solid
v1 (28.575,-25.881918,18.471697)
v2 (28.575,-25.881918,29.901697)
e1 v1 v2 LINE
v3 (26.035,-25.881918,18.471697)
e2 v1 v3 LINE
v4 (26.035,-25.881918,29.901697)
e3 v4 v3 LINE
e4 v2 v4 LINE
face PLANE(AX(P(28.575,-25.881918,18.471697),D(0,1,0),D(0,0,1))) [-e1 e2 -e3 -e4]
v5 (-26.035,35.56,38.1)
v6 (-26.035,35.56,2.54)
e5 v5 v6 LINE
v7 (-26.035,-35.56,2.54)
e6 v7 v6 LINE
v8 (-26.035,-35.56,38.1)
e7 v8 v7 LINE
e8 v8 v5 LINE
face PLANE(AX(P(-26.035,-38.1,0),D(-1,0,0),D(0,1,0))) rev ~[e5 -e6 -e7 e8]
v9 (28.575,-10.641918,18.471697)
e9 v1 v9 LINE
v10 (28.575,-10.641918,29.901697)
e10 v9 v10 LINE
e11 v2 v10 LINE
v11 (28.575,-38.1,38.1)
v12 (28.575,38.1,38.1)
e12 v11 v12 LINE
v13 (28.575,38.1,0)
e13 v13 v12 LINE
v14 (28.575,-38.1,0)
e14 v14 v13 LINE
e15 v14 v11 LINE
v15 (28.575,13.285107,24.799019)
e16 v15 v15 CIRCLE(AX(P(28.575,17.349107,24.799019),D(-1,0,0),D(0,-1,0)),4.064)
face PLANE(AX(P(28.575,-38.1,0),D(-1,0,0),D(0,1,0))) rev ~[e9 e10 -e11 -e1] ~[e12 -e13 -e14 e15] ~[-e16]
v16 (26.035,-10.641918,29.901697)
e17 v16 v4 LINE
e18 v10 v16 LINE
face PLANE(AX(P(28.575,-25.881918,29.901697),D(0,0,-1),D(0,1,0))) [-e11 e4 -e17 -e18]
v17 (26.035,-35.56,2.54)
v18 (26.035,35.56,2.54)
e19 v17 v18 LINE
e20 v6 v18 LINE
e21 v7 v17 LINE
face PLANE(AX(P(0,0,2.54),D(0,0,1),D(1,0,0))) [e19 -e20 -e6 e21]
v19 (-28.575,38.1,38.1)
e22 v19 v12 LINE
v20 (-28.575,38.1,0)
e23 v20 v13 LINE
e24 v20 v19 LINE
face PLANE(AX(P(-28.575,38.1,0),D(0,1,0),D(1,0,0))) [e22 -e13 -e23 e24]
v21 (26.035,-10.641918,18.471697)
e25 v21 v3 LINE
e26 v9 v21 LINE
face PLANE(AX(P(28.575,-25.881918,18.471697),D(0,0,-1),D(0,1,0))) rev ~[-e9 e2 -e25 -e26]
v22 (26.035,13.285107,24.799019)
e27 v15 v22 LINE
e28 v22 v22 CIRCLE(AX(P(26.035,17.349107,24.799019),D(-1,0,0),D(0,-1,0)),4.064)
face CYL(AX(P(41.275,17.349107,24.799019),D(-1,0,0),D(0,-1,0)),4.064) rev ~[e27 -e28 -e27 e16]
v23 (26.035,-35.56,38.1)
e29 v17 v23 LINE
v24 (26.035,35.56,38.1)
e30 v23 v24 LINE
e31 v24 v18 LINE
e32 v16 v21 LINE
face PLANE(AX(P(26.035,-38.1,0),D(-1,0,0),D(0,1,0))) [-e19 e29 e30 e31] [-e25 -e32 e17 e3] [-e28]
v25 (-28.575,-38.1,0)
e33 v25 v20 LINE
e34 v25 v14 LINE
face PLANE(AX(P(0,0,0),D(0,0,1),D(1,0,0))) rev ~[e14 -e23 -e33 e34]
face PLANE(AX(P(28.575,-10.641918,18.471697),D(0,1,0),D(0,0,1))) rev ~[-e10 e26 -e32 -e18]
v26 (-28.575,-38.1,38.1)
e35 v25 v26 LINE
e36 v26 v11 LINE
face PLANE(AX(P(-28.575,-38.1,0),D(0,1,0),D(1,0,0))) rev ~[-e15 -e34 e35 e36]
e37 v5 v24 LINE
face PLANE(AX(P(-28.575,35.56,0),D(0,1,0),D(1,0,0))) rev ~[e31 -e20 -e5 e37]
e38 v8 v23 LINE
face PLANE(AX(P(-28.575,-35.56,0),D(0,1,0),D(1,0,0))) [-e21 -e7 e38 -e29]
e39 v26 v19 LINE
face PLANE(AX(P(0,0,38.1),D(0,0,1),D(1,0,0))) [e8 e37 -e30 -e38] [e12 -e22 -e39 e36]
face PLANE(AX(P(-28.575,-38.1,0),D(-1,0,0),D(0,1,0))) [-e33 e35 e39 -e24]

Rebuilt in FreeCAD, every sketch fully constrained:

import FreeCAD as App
import Part
import Sketcher
Q = App.Units.Quantity


def faces_at(feature, points):
    """Names of the faces that lie closest to the given points."""
    faces = feature.Shape.Faces
    near = lambda p: min(range(len(faces)), key=lambda i: faces[i].distToShape(Part.Vertex(*p))[0])
    return sorted({f"Face{near(p) + 1}" for p in points})


def add_polygon(sketch, points):
    """Adds a closed chain of lines whose ends are joined by coincident constraints."""
    first, n = sketch.GeometryCount, len(points)
    for a, b in zip(points, points[1:] + points[:1]):
        sketch.addGeometry(Part.LineSegment(App.Vector(*a, 0), App.Vector(*b, 0)), False)
    for i in range(n):
        sketch.addConstraint(Sketcher.Constraint("Coincident", first + i, 2, first + (i + 1) % n, 1))

doc = App.newDocument("Part")
body = doc.addObject("PartDesign::Body", "Body")

sketch1 = body.newObject("Sketcher::SketchObject", "Sketch")
sketch1.AttachmentSupport = (doc.getObject("XY_Plane"), [""])
sketch1.MapMode = "FlatFace"
add_polygon(sketch1, [(-29, 38), (-29, -38), (29, -38), (29, 38)])
sketch1.addConstraint(Sketcher.Constraint("Vertical", 0))
sketch1.addConstraint(Sketcher.Constraint("Horizontal", 1))
sketch1.addConstraint(Sketcher.Constraint("Vertical", 2))
sketch1.addConstraint(Sketcher.Constraint("Horizontal", 3))
sketch1.addConstraint(Sketcher.Constraint("Symmetric", 0, 2, 2, 2, -1, 1))
sketch1.addConstraint(Sketcher.Constraint("DistanceY", 0, 2, 0, 1, Q("3 in")))
sketch1.addConstraint(Sketcher.Constraint("DistanceX", 1, 1, 1, 2, Q("2.25 in")))
pad1 = body.newObject("PartDesign::Pad", "Pad")
pad1.Profile = sketch1
pad1.Length = Q("1.5 in")
doc.recompute()

thickness = body.newObject("PartDesign::Thickness", "Thickness")
thickness.Base = (pad1, faces_at(pad1, [(0, 0, 38.1)]))
thickness.Value = Q("0.1 in")
thickness.Reversed = True
thickness.Join = "Arc"

sketch2 = body.newObject("Sketcher::SketchObject", "Sketch001")
sketch2.AttachmentSupport = (doc.getObject("YZ_Plane"), [""])
sketch2.MapMode = "FlatFace"
sketch2.AttachmentOffset = App.Placement(App.Vector(0, 0, 1.125 * 25.4), App.Rotation())
add_polygon(sketch2, [(-26, 30), (-26, 18), (-11, 18), (-11, 30)])
sketch2.addConstraint(Sketcher.Constraint("Vertical", 0))
sketch2.addConstraint(Sketcher.Constraint("Horizontal", 1))
sketch2.addConstraint(Sketcher.Constraint("Vertical", 2))
sketch2.addConstraint(Sketcher.Constraint("Horizontal", 3))
sketch2.addConstraint(Sketcher.Constraint("DistanceX", 1, 1, 1, 2, Q("0.6 in")))
sketch2.addConstraint(Sketcher.Constraint("DistanceY", 0, 2, 0, 1, Q("0.45 in")))
sketch2.addConstraint(Sketcher.Constraint("DistanceX", 0, 2, -1, 1, Q("25.881918 mm")))
sketch2.addConstraint(Sketcher.Constraint("DistanceY", -1, 1, 0, 2, Q("18.471697 mm")))
pocket1 = body.newObject("PartDesign::Pocket", "Pocket")
pocket1.Profile = sketch2
pocket1.Length = Q("1 in")

sketch3 = body.newObject("Sketcher::SketchObject", "Sketch002")
sketch3.AttachmentSupport = (doc.getObject("YZ_Plane"), [""])
sketch3.MapMode = "FlatFace"
sketch3.AttachmentOffset = App.Placement(App.Vector(0, 0, 1.125 * 25.4), App.Rotation())
sketch3.addGeometry(Part.Circle(App.Vector(17.3, 24.8, 0), App.Vector(0, 0, 1), 4.1), False)
sketch3.addConstraint(Sketcher.Constraint("Diameter", 0, Q("0.32 in")))
sketch3.addConstraint(Sketcher.Constraint("DistanceY", -1, 1, 0, 3, Q("24.799019 mm")))
sketch3.addConstraint(Sketcher.Constraint("DistanceX", -1, 1, 0, 3, Q("17.349107 mm")))
doc.recompute()
hole = body.newObject("PartDesign::Hole", "Hole")
hole.Profile = sketch3
hole.ThreadType = "None"
hole.Diameter = Q("0.32 in")
hole.DepthType = "Dimension"
hole.Depth = Q("0.5 in")
hole.DrillPoint = "Flat"

doc.recompute()
